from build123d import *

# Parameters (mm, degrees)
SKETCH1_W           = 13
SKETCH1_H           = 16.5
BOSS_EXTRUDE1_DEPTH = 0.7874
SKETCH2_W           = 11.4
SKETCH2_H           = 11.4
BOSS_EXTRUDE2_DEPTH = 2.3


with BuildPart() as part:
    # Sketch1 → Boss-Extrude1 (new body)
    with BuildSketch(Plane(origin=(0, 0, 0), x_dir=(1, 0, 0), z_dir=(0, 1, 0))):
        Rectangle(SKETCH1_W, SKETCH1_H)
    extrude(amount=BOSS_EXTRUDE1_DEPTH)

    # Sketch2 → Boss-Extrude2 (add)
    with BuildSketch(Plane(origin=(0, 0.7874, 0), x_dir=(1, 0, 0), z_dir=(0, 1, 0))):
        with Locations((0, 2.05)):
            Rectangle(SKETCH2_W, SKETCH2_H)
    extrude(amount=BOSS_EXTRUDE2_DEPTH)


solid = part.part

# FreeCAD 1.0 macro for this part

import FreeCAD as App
import Part
import Sketcher

V = App.Vector

doc = App.newDocument("Part")
body = doc.addObject("PartDesign::Body", "Body")

sketch1 = body.newObject("Sketcher::SketchObject", "Sketch")
sketch1.AttachmentSupport = (doc.getObject("XZ_Plane"), [""])
sketch1.MapMode = "FlatFace"
sketch1.addGeometry(Part.LineSegment(V(-6.5, -8.25, 0), V(-6.5, 8.25, 0)), False)
sketch1.addGeometry(Part.LineSegment(V(-6.5, 8.25, 0), V(6.5, 8.25, 0)), False)
sketch1.addGeometry(Part.LineSegment(V(6.5, 8.25, 0), V(6.5, -8.25, 0)), False)
sketch1.addGeometry(Part.LineSegment(V(6.5, -8.25, 0), V(-6.5, -8.25, 0)), False)
sketch1.addConstraint(Sketcher.Constraint("Coincident", 0, 2, 1, 1))
sketch1.addConstraint(Sketcher.Constraint("Coincident", 1, 2, 2, 1))
sketch1.addConstraint(Sketcher.Constraint("Coincident", 2, 2, 3, 1))
sketch1.addConstraint(Sketcher.Constraint("Coincident", 3, 2, 0, 1))
sketch1.addConstraint(Sketcher.Constraint("Vertical", 0))
sketch1.addConstraint(Sketcher.Constraint("Horizontal", 1))
sketch1.addConstraint(Sketcher.Constraint("Vertical", 2))
sketch1.addConstraint(Sketcher.Constraint("Horizontal", 3))
sketch1.addConstraint(Sketcher.Constraint("Symmetric", 0, 2, 2, 2, -1, 1))
sketch1.addConstraint(Sketcher.Constraint("DistanceX", 1, 1, 1, 2, 13.0))
sketch1.addConstraint(Sketcher.Constraint("DistanceY", 0, 1, 0, 2, 16.5))
pad1 = body.newObject("PartDesign::Pad", "Pad")
pad1.Profile = sketch1
pad1.Length = 0.7874
pad1.Reversed = True

sketch2 = body.newObject("Sketcher::SketchObject", "Sketch001")
sketch2.AttachmentSupport = (doc.getObject("XZ_Plane"), [""])
sketch2.MapMode = "FlatFace"
sketch2.AttachmentOffset = App.Placement(V(0, 0, -0.7874), App.Rotation())
sketch2.addGeometry(Part.LineSegment(V(-5.7, -7.75, 0), V(-5.7, 3.65, 0)), False)
sketch2.addGeometry(Part.LineSegment(V(-5.7, 3.65, 0), V(5.7, 3.65, 0)), False)
sketch2.addGeometry(Part.LineSegment(V(5.7, 3.65, 0), V(5.7, -7.75, 0)), False)
sketch2.addGeometry(Part.LineSegment(V(5.7, -7.75, 0), V(-5.7, -7.75, 0)), False)
sketch2.addConstraint(Sketcher.Constraint("Coincident", 0, 2, 1, 1))
sketch2.addConstraint(Sketcher.Constraint("Coincident", 1, 2, 2, 1))
sketch2.addConstraint(Sketcher.Constraint("Coincident", 2, 2, 3, 1))
sketch2.addConstraint(Sketcher.Constraint("Coincident", 3, 2, 0, 1))
sketch2.addConstraint(Sketcher.Constraint("Vertical", 0))
sketch2.addConstraint(Sketcher.Constraint("Horizontal", 1))
sketch2.addConstraint(Sketcher.Constraint("Vertical", 2))
sketch2.addConstraint(Sketcher.Constraint("Horizontal", 3))
sketch2.addConstraint(Sketcher.Constraint("Equal", 3, 0))
sketch2.addConstraint(Sketcher.Constraint("DistanceX", 1, 1, 1, 2, 11.4))
sketch2.addConstraint(Sketcher.Constraint("DistanceX", 0, 2, -1, 1, 5.7))
sketch2.addConstraint(Sketcher.Constraint("DistanceY", -1, 1, 0, 2, 3.65))
pad2 = body.newObject("PartDesign::Pad", "Pad001")
pad2.Profile = sketch2
pad2.Length = 2.3
pad2.Reversed = True

doc.recompute()
